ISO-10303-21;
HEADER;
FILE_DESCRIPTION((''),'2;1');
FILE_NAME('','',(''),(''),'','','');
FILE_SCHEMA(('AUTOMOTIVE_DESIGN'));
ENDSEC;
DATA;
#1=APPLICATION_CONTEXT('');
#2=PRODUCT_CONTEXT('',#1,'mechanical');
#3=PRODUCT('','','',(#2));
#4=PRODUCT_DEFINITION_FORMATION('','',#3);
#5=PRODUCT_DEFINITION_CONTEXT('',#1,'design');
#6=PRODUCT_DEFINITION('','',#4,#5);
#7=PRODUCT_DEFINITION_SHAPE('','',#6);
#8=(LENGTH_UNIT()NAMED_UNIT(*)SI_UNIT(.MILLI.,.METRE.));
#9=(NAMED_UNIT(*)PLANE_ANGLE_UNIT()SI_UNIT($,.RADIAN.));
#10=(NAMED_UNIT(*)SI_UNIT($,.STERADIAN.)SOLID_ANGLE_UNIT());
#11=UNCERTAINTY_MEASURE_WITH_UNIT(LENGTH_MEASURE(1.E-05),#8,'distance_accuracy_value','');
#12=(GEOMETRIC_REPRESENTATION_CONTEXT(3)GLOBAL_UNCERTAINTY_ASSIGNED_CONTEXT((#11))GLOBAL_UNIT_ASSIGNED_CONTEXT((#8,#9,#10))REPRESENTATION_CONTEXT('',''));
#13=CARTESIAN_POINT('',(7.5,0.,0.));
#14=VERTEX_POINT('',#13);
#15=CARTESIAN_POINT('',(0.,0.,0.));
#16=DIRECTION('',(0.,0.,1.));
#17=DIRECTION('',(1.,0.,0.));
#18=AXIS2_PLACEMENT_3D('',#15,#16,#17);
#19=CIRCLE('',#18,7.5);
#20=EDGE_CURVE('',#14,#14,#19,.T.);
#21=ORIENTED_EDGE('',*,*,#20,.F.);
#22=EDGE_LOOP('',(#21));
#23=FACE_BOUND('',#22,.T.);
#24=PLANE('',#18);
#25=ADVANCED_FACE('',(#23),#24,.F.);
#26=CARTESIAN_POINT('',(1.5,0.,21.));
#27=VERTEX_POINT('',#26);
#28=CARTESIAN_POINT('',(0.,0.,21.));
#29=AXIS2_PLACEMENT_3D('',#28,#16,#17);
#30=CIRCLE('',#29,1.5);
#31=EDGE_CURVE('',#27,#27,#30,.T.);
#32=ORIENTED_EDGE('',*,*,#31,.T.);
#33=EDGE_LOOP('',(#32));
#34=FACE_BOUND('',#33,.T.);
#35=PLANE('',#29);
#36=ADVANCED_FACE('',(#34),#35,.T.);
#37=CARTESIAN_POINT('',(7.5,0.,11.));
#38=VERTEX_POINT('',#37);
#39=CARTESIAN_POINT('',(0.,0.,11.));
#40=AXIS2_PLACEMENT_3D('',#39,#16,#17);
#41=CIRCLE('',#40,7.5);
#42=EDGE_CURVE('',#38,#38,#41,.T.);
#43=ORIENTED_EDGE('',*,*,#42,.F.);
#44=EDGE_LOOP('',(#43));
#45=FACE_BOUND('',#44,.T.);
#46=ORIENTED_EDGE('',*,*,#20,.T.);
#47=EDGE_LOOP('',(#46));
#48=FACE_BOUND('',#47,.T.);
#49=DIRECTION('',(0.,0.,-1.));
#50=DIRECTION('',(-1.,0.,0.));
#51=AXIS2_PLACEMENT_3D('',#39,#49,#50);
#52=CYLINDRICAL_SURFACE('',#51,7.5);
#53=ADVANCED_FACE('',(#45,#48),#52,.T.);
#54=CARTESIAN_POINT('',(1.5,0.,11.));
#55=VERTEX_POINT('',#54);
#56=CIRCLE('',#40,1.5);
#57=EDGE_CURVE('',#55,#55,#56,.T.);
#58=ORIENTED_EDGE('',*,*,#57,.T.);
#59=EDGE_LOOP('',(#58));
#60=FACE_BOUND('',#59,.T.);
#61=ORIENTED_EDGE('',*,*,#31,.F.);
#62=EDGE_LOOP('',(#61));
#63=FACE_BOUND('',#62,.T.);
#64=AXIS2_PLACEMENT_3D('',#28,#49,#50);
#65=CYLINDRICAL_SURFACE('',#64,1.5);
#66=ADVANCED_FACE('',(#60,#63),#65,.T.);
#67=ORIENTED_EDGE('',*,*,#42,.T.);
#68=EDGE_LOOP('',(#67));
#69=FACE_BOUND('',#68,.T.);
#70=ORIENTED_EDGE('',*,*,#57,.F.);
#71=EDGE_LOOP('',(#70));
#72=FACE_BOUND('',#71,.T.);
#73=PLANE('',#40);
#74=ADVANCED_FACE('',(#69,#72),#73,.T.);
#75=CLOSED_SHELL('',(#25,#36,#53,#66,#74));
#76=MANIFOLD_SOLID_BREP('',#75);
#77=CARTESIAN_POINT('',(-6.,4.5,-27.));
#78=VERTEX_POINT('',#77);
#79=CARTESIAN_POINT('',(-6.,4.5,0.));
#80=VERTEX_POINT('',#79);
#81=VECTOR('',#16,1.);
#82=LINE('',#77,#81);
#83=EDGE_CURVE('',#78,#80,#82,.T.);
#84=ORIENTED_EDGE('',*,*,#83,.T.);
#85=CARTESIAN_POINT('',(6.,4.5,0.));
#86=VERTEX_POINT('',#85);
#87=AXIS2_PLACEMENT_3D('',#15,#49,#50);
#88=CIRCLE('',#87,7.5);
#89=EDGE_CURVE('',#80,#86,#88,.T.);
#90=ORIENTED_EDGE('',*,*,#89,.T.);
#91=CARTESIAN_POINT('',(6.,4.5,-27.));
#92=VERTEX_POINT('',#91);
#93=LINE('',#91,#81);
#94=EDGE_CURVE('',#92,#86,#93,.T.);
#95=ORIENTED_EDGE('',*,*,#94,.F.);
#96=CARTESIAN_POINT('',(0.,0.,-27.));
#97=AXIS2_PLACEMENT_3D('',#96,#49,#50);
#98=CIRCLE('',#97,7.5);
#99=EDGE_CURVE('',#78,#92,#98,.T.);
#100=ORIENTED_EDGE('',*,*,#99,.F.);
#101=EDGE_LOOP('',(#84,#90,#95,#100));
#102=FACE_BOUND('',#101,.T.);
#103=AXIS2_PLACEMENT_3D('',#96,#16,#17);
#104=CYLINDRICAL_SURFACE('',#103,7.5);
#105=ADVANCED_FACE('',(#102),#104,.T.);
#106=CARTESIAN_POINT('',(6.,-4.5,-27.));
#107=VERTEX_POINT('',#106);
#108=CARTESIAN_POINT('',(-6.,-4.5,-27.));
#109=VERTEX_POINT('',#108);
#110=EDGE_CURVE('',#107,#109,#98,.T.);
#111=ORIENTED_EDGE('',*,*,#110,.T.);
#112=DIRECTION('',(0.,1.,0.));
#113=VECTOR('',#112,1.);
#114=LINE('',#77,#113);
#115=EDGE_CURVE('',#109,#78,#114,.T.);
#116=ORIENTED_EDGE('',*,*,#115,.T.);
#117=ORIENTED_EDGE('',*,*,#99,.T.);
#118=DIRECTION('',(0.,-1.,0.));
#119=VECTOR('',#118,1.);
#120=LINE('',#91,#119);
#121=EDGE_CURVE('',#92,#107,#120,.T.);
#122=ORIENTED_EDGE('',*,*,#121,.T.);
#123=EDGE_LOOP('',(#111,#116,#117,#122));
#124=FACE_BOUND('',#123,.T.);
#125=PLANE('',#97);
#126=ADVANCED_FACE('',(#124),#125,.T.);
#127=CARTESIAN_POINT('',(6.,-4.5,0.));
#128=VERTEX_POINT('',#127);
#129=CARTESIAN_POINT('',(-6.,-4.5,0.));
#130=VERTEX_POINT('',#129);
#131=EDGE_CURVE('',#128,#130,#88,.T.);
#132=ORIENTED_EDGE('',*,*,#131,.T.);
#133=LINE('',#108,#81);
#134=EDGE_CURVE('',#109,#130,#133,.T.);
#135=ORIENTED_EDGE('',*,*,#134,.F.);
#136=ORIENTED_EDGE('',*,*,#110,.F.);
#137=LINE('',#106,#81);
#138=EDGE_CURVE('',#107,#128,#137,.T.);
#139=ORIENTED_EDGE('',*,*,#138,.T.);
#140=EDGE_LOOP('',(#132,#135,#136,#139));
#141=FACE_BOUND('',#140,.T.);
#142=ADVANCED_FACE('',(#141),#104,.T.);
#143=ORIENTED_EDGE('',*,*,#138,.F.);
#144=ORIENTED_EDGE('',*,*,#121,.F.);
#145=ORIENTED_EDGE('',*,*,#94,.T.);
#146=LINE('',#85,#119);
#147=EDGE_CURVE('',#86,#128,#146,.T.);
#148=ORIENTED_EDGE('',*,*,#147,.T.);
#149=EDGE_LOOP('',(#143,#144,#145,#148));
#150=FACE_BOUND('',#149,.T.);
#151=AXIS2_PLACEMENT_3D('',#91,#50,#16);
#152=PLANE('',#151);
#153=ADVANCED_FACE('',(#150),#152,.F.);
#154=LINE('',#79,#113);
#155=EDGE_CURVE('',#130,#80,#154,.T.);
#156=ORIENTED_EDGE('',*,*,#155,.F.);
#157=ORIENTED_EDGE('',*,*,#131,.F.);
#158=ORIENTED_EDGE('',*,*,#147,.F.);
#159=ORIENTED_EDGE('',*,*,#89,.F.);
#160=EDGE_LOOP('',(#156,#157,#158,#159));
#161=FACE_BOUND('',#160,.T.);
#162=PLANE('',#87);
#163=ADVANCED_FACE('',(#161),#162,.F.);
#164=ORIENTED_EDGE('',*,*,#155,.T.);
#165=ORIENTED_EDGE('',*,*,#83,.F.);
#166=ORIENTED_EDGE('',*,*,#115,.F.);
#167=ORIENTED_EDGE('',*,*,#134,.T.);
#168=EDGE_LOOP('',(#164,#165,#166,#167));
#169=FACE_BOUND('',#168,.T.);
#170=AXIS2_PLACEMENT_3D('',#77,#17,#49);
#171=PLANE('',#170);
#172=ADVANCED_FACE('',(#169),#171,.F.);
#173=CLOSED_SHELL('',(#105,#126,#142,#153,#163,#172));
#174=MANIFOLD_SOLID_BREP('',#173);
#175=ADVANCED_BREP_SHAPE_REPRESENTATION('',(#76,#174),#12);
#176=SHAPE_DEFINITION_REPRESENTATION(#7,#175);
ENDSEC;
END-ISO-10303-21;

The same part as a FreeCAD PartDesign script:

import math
import FreeCAD as App
import Part
import Sketcher

doc = App.newDocument("Part")
body = doc.addObject("PartDesign::Body", "Body")

sketch1 = body.newObject("Sketcher::SketchObject", "Sketch")
sketch1.AttachmentSupport = (doc.getObject("XY_Plane"), [""])
sketch1.MapMode = "FlatFace"
sketch1.addGeometry(Part.Circle(App.Vector(0, 0, 0), App.Vector(0, 0, 1), 7.5), False)
sketch1.addConstraint(Sketcher.Constraint("Coincident", 0, 3, -1, 1))
sketch1.addConstraint(Sketcher.Constraint("Diameter", 0, 15.0))
pad1 = body.newObject("PartDesign::Pad", "Pad")
pad1.Profile = sketch1
pad1.Length = 11

sketch2 = body.newObject("Sketcher::SketchObject", "Sketch001")
sketch2.AttachmentSupport = (doc.getObject("XY_Plane"), [""])
sketch2.MapMode = "FlatFace"
sketch2.AttachmentOffset = App.Placement(App.Vector(0, 0, 11), App.Rotation())
sketch2.addGeometry(Part.Circle(App.Vector(0, 0, 0), App.Vector(0, 0, 1), 1.5), False)
sketch2.addConstraint(Sketcher.Constraint("Coincident", 0, 3, -1, 1))
sketch2.addConstraint(Sketcher.Constraint("Diameter", 0, 3.0))
pad2 = body.newObject("PartDesign::Pad", "Pad001")
pad2.Profile = sketch2
pad2.Length = 10
body2 = doc.addObject("PartDesign::Body", "Body001")

sketch3 = body2.newObject("Sketcher::SketchObject", "Sketch002")
sketch3.AttachmentSupport = (doc.getObject("XY_Plane001"), [""])
sketch3.MapMode = "FlatFace"
sketch3.addGeometry(Part.LineSegment(App.Vector(6, 4.5, 0), App.Vector(6, -4.5, 0)), False)
sketch3.addGeometry(Part.ArcOfCircle(Part.Circle(App.Vector(0, 0, 0), App.Vector(0, 0, 1), 7.5), math.radians(-143.130102), math.radians(-36.869898)), False)
sketch3.addGeometry(Part.LineSegment(App.Vector(-6, -4.5, 0), App.Vector(-6, 4.5, 0)), False)
sketch3.addGeometry(Part.ArcOfCircle(Part.Circle(App.Vector(0, 0, 0), App.Vector(0, 0, 1), 7.5), math.radians(36.869898), math.radians(143.130102)), False)
sketch3.addConstraint(Sketcher.Constraint("Coincident", 0, 2, 1, 2))
sketch3.addConstraint(Sketcher.Constraint("Coincident", 1, 1, 2, 1))
sketch3.addConstraint(Sketcher.Constraint("Coincident", 2, 2, 3, 2))
sketch3.addConstraint(Sketcher.Constraint("Coincident", 3, 1, 0, 1))
sketch3.addConstraint(Sketcher.Constraint("Vertical", 0))
sketch3.addConstraint(Sketcher.Constraint("Vertical", 2))
sketch3.addConstraint(Sketcher.Constraint("Coincident", 1, 3, -1, 1))
sketch3.addConstraint(Sketcher.Constraint("Coincident", 3, 3, -1, 1))
sketch3.addConstraint(Sketcher.Constraint("Equal", 1, 3))
sketch3.addConstraint(Sketcher.Constraint("Horizontal", 0, 2, 1, 1))
sketch3.addConstraint(Sketcher.Constraint("Radius", 1, 7.5))
sketch3.addConstraint(Sketcher.Constraint("DistanceY", 0, 2, 0, 1, 9.0))
pad3 = body2.newObject("PartDesign::Pad", "Pad002")
pad3.Profile = sketch3
pad3.Length = 27
pad3.Reversed = True

doc.recompute()
